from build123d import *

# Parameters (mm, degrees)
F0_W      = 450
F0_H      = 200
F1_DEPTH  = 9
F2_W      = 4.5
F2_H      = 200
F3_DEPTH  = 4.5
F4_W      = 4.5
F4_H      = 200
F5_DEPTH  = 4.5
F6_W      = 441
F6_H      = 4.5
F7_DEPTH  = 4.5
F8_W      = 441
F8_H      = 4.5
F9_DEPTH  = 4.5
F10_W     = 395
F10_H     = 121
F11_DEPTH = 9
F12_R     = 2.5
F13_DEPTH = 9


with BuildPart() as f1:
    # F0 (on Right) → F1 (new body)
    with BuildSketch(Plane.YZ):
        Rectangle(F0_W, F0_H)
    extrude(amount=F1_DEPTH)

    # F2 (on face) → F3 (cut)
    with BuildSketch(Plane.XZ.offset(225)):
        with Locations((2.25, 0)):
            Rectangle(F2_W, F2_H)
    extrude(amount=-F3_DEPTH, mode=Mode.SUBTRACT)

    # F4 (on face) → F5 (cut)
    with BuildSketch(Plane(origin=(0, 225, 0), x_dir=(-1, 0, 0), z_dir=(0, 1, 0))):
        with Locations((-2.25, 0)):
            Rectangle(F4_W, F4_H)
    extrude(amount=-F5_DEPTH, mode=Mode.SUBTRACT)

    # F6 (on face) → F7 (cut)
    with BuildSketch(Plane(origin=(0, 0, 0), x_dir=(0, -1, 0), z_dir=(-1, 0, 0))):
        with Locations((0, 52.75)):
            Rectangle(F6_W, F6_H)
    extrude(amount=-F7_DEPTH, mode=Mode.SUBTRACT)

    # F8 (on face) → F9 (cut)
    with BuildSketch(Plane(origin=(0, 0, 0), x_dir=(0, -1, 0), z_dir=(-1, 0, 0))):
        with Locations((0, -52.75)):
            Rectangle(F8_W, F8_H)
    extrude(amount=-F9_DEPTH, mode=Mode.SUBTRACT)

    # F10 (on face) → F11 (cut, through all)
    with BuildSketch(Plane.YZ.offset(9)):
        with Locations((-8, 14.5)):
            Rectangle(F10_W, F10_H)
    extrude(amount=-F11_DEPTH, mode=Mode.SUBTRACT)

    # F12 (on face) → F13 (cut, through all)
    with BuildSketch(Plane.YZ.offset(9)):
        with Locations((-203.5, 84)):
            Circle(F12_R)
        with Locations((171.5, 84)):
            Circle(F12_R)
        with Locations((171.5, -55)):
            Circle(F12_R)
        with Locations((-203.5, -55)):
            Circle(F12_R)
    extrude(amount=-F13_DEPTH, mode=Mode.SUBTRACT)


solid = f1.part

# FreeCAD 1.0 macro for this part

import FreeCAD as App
import Part
import Sketcher

doc = App.newDocument("Part")
params = doc.addObject("Spreadsheet::Sheet", "Params")
for row, (alias, value) in enumerate([
    ("sketch1_width", "450 mm"),
    ("sketch1_height", "200 mm"),
    ("pad1_length", "9 mm"),
    ("sketch2_height", "200 mm"),
    ("sketch2_width", "4.5 mm"),
    ("pocket1_length", "4.5 mm"),
    ("sketch3_height", "200 mm"),
    ("sketch3_width", "4.5 mm"),
    ("pocket2_length", "4.5 mm"),
    ("sketch4_width", "441 mm"),
    ("sketch4_height", "4.5 mm"),
    ("pocket3_length", "4.5 mm"),
    ("sketch5_width", "441 mm"),
    ("sketch5_height", "4.5 mm"),
    ("pocket4_length", "4.5 mm"),
    ("sketch6_width", "395 mm"),
    ("sketch6_height", "121 mm"),
    ("sketch7_diameter", "5 mm"),
], start=1):
    params.set(f"A{row}", alias)
    params.set(f"B{row}", "=" + value)
    params.setAlias(f"B{row}", alias)

body = doc.addObject("PartDesign::Body", "Body")

sketch1 = body.newObject("Sketcher::SketchObject", "Sketch")
sketch1.AttachmentSupport = (doc.getObject("YZ_Plane"), [""])
sketch1.MapMode = "FlatFace"
sketch1.addGeometry([
    Part.LineSegment(App.Vector(-225, 100, 0), App.Vector(-225, -100, 0)),
    Part.LineSegment(App.Vector(-225, -100, 0), App.Vector(225, -100, 0)),
    Part.LineSegment(App.Vector(225, -100, 0), App.Vector(225, 100, 0)),
    Part.LineSegment(App.Vector(225, 100, 0), App.Vector(-225, 100, 0)),
], False)
sketch1.addConstraint([
    Sketcher.Constraint("Coincident", 0, 2, 1, 1),
    Sketcher.Constraint("Coincident", 1, 2, 2, 1),
    Sketcher.Constraint("Coincident", 2, 2, 3, 1),
    Sketcher.Constraint("Coincident", 3, 2, 0, 1),
    Sketcher.Constraint("Vertical", 0),
    Sketcher.Constraint("Horizontal", 1),
    Sketcher.Constraint("Vertical", 2),
    Sketcher.Constraint("Horizontal", 3),
    Sketcher.Constraint("Symmetric", 0, 2, 2, 2, -1, 1),
    Sketcher.Constraint("DistanceX", 1, 1, 1, 2, 450.0),
    Sketcher.Constraint("DistanceY", 0, 2, 0, 1, 200.0),
])
sketch1.setExpression("Constraints[9]", "Params.sketch1_width")
sketch1.setExpression("Constraints[10]", "Params.sketch1_height")
pad1 = body.newObject("PartDesign::Pad", "Pad")
pad1.Profile = sketch1
pad1.setExpression("Length", "Params.pad1_length")

sketch2 = body.newObject("Sketcher::SketchObject", "Sketch001")
sketch2.AttachmentSupport = (doc.getObject("XZ_Plane"), [""])
sketch2.MapMode = "FlatFace"
sketch2.AttachmentOffset = App.Placement(App.Vector(0, 0, 225), App.Rotation())
sketch2.addGeometry([
    Part.LineSegment(App.Vector(0, 100, 0), App.Vector(0, -100, 0)),
    Part.LineSegment(App.Vector(0, -100, 0), App.Vector(4.5, -100, 0)),
    Part.LineSegment(App.Vector(4.5, -100, 0), App.Vector(4.5, 100, 0)),
    Part.LineSegment(App.Vector(4.5, 100, 0), App.Vector(0, 100, 0)),
], False)
sketch2.addConstraint([
    Sketcher.Constraint("Coincident", 0, 2, 1, 1),
    Sketcher.Constraint("Coincident", 1, 2, 2, 1),
    Sketcher.Constraint("Coincident", 2, 2, 3, 1),
    Sketcher.Constraint("Coincident", 3, 2, 0, 1),
    Sketcher.Constraint("Vertical", 0),
    Sketcher.Constraint("Horizontal", 1),
    Sketcher.Constraint("Vertical", 2),
    Sketcher.Constraint("Horizontal", 3),
    Sketcher.Constraint("Symmetric", 0, 2, 3, 2, -1, 1),
    Sketcher.Constraint("DistanceY", 0, 2, 0, 1, 200.0),
    Sketcher.Constraint("DistanceX", 1, 1, 1, 2, 4.5),
])
sketch2.setExpression("Constraints[9]", "Params.sketch2_height")
sketch2.setExpression("Constraints[10]", "Params.sketch2_width")
pocket1 = body.newObject("PartDesign::Pocket", "Pocket")
pocket1.Profile = sketch2
pocket1.setExpression("Length", "Params.pocket1_length")

sketch3 = body.newObject("Sketcher::SketchObject", "Sketch002")
sketch3.AttachmentSupport = (doc.getObject("XZ_Plane"), [""])
sketch3.MapMode = "FlatFace"
sketch3.AttachmentOffset = App.Placement(App.Vector(0, 0, -225), App.Rotation())
sketch3.addGeometry([
    Part.LineSegment(App.Vector(4.5, 100, 0), App.Vector(4.5, -100, 0)),
    Part.LineSegment(App.Vector(4.5, -100, 0), App.Vector(0, -100, 0)),
    Part.LineSegment(App.Vector(0, -100, 0), App.Vector(0, 100, 0)),
    Part.LineSegment(App.Vector(0, 100, 0), App.Vector(4.5, 100, 0)),
], False)
sketch3.addConstraint([
    Sketcher.Constraint("Coincident", 0, 2, 1, 1),
    Sketcher.Constraint("Coincident", 1, 2, 2, 1),
    Sketcher.Constraint("Coincident", 2, 2, 3, 1),
    Sketcher.Constraint("Coincident", 3, 2, 0, 1),
    Sketcher.Constraint("Vertical", 0),
    Sketcher.Constraint("Horizontal", 1),
    Sketcher.Constraint("Vertical", 2),
    Sketcher.Constraint("Horizontal", 3),
    Sketcher.Constraint("Symmetric", 1, 2, 2, 2, -1, 1),
    Sketcher.Constraint("DistanceY", 0, 2, 0, 1, 200.0),
    Sketcher.Constraint("DistanceX", 1, 2, 1, 1, 4.5),
])
sketch3.setExpression("Constraints[9]", "Params.sketch3_height")
sketch3.setExpression("Constraints[10]", "Params.sketch3_width")
pocket2 = body.newObject("PartDesign::Pocket", "Pocket001")
pocket2.Profile = sketch3
pocket2.setExpression("Length", "Params.pocket2_length")
pocket2.Reversed = True

sketch4 = body.newObject("Sketcher::SketchObject", "Sketch003")
sketch4.AttachmentSupport = (doc.getObject("YZ_Plane"), [""])
sketch4.MapMode = "FlatFace"
sketch4.addGeometry([
    Part.LineSegment(App.Vector(220.5, 55, 0), App.Vector(220.5, 50.5, 0)),
    Part.LineSegment(App.Vector(220.5, 50.5, 0), App.Vector(-220.5, 50.5, 0)),
    Part.LineSegment(App.Vector(-220.5, 50.5, 0), App.Vector(-220.5, 55, 0)),
    Part.LineSegment(App.Vector(-220.5, 55, 0), App.Vector(220.5, 55, 0)),
], False)
sketch4.addConstraint([
    Sketcher.Constraint("Coincident", 0, 2, 1, 1),
    Sketcher.Constraint("Coincident", 1, 2, 2, 1),
    Sketcher.Constraint("Coincident", 2, 2, 3, 1),
    Sketcher.Constraint("Coincident", 3, 2, 0, 1),
    Sketcher.Constraint("Vertical", 0),
    Sketcher.Constraint("Horizontal", 1),
    Sketcher.Constraint("Vertical", 2),
    Sketcher.Constraint("Horizontal", 3),
    Sketcher.Constraint("DistanceX", 1, 2, 1, 1, 441.0),
    Sketcher.Constraint("DistanceY", 0, 2, 0, 1, 4.5),
    Sketcher.Constraint("DistanceY", -1, 1, 2, 2, 55.0),
    Sketcher.Constraint("DistanceX", -1, 1, 0, 2, 220.5),
])
sketch4.setExpression("Constraints[8]", "Params.sketch4_width")
sketch4.setExpression("Constraints[9]", "Params.sketch4_height")
pocket3 = body.newObject("PartDesign::Pocket", "Pocket002")
pocket3.Profile = sketch4
pocket3.setExpression("Length", "Params.pocket3_length")
pocket3.Reversed = True

sketch5 = body.newObject("Sketcher::SketchObject", "Sketch004")
sketch5.AttachmentSupport = (doc.getObject("YZ_Plane"), [""])
sketch5.MapMode = "FlatFace"
sketch5.addGeometry([
    Part.LineSegment(App.Vector(220.5, -50.5, 0), App.Vector(220.5, -55, 0)),
    Part.LineSegment(App.Vector(220.5, -55, 0), App.Vector(-220.5, -55, 0)),
    Part.LineSegment(App.Vector(-220.5, -55, 0), App.Vector(-220.5, -50.5, 0)),
    Part.LineSegment(App.Vector(-220.5, -50.5, 0), App.Vector(220.5, -50.5, 0)),
], False)
sketch5.addConstraint([
    Sketcher.Constraint("Coincident", 0, 2, 1, 1),
    Sketcher.Constraint("Coincident", 1, 2, 2, 1),
    Sketcher.Constraint("Coincident", 2, 2, 3, 1),
    Sketcher.Constraint("Coincident", 3, 2, 0, 1),
    Sketcher.Constraint("Vertical", 0),
    Sketcher.Constraint("Horizontal", 1),
    Sketcher.Constraint("Vertical", 2),
    Sketcher.Constraint("Horizontal", 3),
    Sketcher.Constraint("DistanceX", 1, 2, 1, 1, 441.0),
    Sketcher.Constraint("DistanceY", 0, 2, 0, 1, 4.5),
    Sketcher.Constraint("DistanceY", 0, 2, -1, 1, 55.0),
    Sketcher.Constraint("DistanceX", -1, 1, 0, 2, 220.5),
])
sketch5.setExpression("Constraints[8]", "Params.sketch5_width")
sketch5.setExpression("Constraints[9]", "Params.sketch5_height")
pocket4 = body.newObject("PartDesign::Pocket", "Pocket003")
pocket4.Profile = sketch5
pocket4.setExpression("Length", "Params.pocket4_length")
pocket4.Reversed = True

sketch6 = body.newObject("Sketcher::SketchObject", "Sketch005")
sketch6.AttachmentSupport = (doc.getObject("YZ_Plane"), [""])
sketch6.MapMode = "FlatFace"
sketch6.AttachmentOffset = App.Placement(App.Vector(0, 0, 9), App.Rotation())
sketch6.addGeometry([
    Part.LineSegment(App.Vector(-206, 75, 0), App.Vector(-206, -46, 0)),
    Part.LineSegment(App.Vector(-206, -46, 0), App.Vector(190, -46, 0)),
    Part.LineSegment(App.Vector(190, -46, 0), App.Vector(190, 75, 0)),
    Part.LineSegment(App.Vector(190, 75, 0), App.Vector(-206, 75, 0)),
], False)
sketch6.addConstraint([
    Sketcher.Constraint("Coincident", 0, 2, 1, 1),
    Sketcher.Constraint("Coincident", 1, 2, 2, 1),
    Sketcher.Constraint("Coincident", 2, 2, 3, 1),
    Sketcher.Constraint("Coincident", 3, 2, 0, 1),
    Sketcher.Constraint("Vertical", 0),
    Sketcher.Constraint("Horizontal", 1),
    Sketcher.Constraint("Vertical", 2),
    Sketcher.Constraint("Horizontal", 3),
    Sketcher.Constraint("DistanceX", 1, 1, 1, 2, 395.0),
    Sketcher.Constraint("DistanceY", 0, 2, 0, 1, 121.0),
    Sketcher.Constraint("DistanceY", 0, 2, -1, 1, 46.0),
    Sketcher.Constraint("DistanceX", 0, 2, -1, 1, 205.5),
])
sketch6.setExpression("Constraints[8]", "Params.sketch6_width")
sketch6.setExpression("Constraints[9]", "Params.sketch6_height")
pocket5 = body.newObject("PartDesign::Pocket", "Pocket004")
pocket5.Profile = sketch6
pocket5.Type = "ThroughAll"

sketch7 = body.newObject("Sketcher::SketchObject", "Sketch006")
sketch7.AttachmentSupport = (doc.getObject("YZ_Plane"), [""])
sketch7.MapMode = "FlatFace"
sketch7.AttachmentOffset = App.Placement(App.Vector(0, 0, 9), App.Rotation())
sketch7.addGeometry([
    Part.Circle(App.Vector(-203.5, 84, 0), App.Vector(0, 0, 1), 2.5),
    Part.Circle(App.Vector(171.5, 84, 0), App.Vector(0, 0, 1), 2.5),
    Part.Circle(App.Vector(171.5, -55, 0), App.Vector(0, 0, 1), 2.5),
    Part.Circle(App.Vector(-203.5, -55, 0), App.Vector(0, 0, 1), 2.5),
], False)
sketch7.addConstraint([
    Sketcher.Constraint("Equal", 0, 1),
    Sketcher.Constraint("Equal", 1, 2),
    Sketcher.Constraint("Equal", 2, 3),
    Sketcher.Constraint("Horizontal", 0, 3, 1, 3),
    Sketcher.Constraint("Horizontal", 2, 3, 3, 3),
    Sketcher.Constraint("Vertical", 1, 3, 2, 3),
    Sketcher.Constraint("Vertical", 0, 3, 3, 3),
    Sketcher.Constraint("Diameter", 0, 5.0),
    Sketcher.Constraint("DistanceY", -1, 1, 0, 3, 84.0),
    Sketcher.Constraint("DistanceY", 2, 3, -1, 1, 55.0),
    Sketcher.Constraint("DistanceX", 0, 3, 1, 3, 375.0),
    Sketcher.Constraint("DistanceX", 0, 3, -1, 1, 203.5),
])
sketch7.setExpression("Constraints[7]", "Params.sketch7_diameter")
pocket6 = body.newObject("PartDesign::Pocket", "Pocket005")
pocket6.Profile = sketch7
pocket6.Type = "ThroughAll"

doc.recompute()
